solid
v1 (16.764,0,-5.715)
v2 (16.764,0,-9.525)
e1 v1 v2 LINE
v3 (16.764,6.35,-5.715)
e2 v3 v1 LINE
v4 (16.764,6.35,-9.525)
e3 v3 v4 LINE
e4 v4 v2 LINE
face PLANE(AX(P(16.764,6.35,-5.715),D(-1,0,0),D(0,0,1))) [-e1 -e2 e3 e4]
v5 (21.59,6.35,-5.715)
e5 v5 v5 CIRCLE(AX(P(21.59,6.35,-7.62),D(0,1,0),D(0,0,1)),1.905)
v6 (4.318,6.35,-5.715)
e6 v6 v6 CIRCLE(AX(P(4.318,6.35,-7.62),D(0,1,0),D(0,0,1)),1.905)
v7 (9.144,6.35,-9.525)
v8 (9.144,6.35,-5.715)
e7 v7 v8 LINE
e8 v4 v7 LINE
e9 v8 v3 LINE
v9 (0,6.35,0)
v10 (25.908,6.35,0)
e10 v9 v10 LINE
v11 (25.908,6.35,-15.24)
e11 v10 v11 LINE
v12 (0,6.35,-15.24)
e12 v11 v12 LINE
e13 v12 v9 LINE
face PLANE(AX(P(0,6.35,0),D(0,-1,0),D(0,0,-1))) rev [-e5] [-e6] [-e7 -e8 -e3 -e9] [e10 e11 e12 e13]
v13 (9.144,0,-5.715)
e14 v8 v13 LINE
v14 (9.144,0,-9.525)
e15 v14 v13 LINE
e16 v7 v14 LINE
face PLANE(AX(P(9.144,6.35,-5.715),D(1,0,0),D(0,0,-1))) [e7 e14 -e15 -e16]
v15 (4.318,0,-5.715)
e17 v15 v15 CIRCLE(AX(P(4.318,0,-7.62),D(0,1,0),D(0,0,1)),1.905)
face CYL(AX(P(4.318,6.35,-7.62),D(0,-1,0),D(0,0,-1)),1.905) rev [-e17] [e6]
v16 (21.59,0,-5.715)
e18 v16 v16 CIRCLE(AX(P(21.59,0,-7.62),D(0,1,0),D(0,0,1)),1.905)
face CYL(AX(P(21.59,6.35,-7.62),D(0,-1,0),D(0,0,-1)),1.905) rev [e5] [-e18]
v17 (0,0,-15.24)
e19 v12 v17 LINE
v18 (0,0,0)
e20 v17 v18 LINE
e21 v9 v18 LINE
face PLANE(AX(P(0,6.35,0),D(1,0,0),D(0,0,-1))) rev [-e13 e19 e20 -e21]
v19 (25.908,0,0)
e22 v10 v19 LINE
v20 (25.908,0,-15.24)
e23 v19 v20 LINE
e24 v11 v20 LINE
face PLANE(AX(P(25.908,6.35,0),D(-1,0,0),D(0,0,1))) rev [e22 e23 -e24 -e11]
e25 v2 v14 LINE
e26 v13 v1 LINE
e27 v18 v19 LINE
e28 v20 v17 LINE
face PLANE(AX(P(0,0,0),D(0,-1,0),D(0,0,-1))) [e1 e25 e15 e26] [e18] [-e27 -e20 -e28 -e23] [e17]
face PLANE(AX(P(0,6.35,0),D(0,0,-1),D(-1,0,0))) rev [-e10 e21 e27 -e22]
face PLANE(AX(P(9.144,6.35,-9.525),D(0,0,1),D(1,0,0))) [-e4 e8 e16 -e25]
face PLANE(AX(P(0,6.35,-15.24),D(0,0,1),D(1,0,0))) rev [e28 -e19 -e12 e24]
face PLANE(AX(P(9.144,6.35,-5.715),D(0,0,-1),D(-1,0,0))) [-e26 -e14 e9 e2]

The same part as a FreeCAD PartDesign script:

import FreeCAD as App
import Part
import Sketcher
from FreeCAD import Vector
Q = App.Units.Quantity

doc = App.newDocument("Part")
body = doc.addObject("PartDesign::Body", "Body")

sketch1 = body.newObject("Sketcher::SketchObject", "Sketch")
sketch1.AttachmentSupport = (doc.getObject("XZ_Plane"), [""])
sketch1.MapMode = "FlatFace"
sketch1.addGeometry([
    Part.LineSegment(Vector(0, -15.2, 0), Vector(0, 0, 0)),
    Part.LineSegment(Vector(0, 0, 0), Vector(25.9, 0, 0)),
    Part.LineSegment(Vector(25.9, 0, 0), Vector(25.9, -15.2, 0)),
    Part.LineSegment(Vector(25.9, -15.2, 0), Vector(0, -15.2, 0)),
    Part.Circle(Vector(4.3, -7.6, 0), Vector(0, 0, 1), 1.9),
    Part.LineSegment(Vector(16.8, -5.7, 0), Vector(9.1, -5.7, 0)),
    Part.LineSegment(Vector(9.1, -5.7, 0), Vector(9.1, -9.5, 0)),
    Part.LineSegment(Vector(9.1, -9.5, 0), Vector(16.8, -9.5, 0)),
    Part.LineSegment(Vector(16.8, -9.5, 0), Vector(16.8, -5.7, 0)),
    Part.Circle(Vector(21.6, -7.6, 0), Vector(0, 0, 1), 1.9),
], False)
sketch1.addConstraint([
    Sketcher.Constraint("Coincident", 0, 2, 1, 1),
    Sketcher.Constraint("Coincident", 1, 2, 2, 1),
    Sketcher.Constraint("Coincident", 2, 2, 3, 1),
    Sketcher.Constraint("Coincident", 3, 2, 0, 1),
    Sketcher.Constraint("Coincident", 5, 2, 6, 1),
    Sketcher.Constraint("Coincident", 6, 2, 7, 1),
    Sketcher.Constraint("Coincident", 7, 2, 8, 1),
    Sketcher.Constraint("Coincident", 8, 2, 5, 1),
    Sketcher.Constraint("Vertical", 0),
    Sketcher.Constraint("Horizontal", 1),
    Sketcher.Constraint("Vertical", 2),
    Sketcher.Constraint("Horizontal", 3),
    Sketcher.Constraint("Horizontal", 5),
    Sketcher.Constraint("Vertical", 6),
    Sketcher.Constraint("Horizontal", 7),
    Sketcher.Constraint("Vertical", 8),
    Sketcher.Constraint("Coincident", 0, 2, -1, 1),
    Sketcher.Constraint("Equal", 4, 9),
    Sketcher.Constraint("Horizontal", 4, 3, 9, 3),
    Sketcher.Constraint("Diameter", 4, Q("0.15 in")),
    Sketcher.Constraint("DistanceX", 5, 2, 5, 1, Q("0.3 in")),
    Sketcher.Constraint("DistanceY", 0, 1, 0, 2, Q("0.6 in")),
    Sketcher.Constraint("DistanceX", 1, 1, 1, 2, Q("1.02 in")),
    Sketcher.Constraint("DistanceY", 6, 2, 6, 1, Q("0.15 in")),
    Sketcher.Constraint("DistanceY", 4, 3, -1, 1, Q("0.3 in")),
    Sketcher.Constraint("DistanceX", -1, 1, 4, 3, Q("0.17 in")),
    Sketcher.Constraint("DistanceX", -1, 1, 9, 3, Q("0.85 in")),
    Sketcher.Constraint("DistanceX", -1, 1, 5, 2, Q("0.36 in")),
    Sketcher.Constraint("DistanceY", 5, 2, -1, 1, Q("0.225 in")),
])
pad1 = body.newObject("PartDesign::Pad", "Pad")
pad1.Profile = sketch1
pad1.Length = Q("0.25 in")
pad1.Reversed = True

doc.recompute()
